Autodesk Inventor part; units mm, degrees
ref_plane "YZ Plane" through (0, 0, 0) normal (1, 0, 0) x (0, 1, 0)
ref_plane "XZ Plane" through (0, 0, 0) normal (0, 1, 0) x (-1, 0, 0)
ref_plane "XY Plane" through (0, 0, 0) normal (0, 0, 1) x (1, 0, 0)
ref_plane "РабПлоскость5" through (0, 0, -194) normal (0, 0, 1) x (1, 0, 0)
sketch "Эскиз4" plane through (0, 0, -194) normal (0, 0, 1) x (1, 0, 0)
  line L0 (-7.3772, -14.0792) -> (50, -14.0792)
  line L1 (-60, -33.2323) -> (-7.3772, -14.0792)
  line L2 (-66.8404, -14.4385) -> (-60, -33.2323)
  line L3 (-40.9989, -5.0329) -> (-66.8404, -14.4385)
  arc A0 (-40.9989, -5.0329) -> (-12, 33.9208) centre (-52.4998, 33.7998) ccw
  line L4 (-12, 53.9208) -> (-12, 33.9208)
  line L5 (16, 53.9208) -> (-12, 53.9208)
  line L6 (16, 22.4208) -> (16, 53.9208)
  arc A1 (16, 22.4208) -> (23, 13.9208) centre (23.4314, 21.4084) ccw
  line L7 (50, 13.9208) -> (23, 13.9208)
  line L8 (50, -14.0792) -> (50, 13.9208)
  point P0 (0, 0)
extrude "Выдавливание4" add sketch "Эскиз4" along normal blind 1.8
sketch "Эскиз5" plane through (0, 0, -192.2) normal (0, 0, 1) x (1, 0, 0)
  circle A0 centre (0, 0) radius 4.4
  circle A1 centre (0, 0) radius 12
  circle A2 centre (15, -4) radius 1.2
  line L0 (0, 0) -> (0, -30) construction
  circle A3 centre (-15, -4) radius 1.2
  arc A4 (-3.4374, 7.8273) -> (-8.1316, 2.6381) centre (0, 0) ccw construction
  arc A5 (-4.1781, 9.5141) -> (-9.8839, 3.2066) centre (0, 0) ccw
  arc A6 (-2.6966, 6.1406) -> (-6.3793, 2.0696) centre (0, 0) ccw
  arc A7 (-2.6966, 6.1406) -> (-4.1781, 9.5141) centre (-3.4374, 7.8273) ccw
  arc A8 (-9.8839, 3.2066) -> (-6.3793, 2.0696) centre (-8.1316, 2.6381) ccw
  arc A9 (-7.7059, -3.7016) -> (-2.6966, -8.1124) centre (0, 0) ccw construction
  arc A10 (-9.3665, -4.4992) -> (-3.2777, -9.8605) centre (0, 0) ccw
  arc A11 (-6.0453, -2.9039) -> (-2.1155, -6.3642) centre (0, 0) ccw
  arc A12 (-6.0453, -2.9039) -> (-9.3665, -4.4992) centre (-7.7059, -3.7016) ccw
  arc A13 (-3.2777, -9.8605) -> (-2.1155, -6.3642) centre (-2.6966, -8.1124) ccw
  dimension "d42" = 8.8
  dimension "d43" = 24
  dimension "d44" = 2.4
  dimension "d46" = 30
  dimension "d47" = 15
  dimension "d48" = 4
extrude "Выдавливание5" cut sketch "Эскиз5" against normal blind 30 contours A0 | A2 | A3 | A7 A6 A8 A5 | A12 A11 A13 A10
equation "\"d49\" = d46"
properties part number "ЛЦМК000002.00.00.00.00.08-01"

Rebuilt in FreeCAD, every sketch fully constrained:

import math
import FreeCAD as App
import Part
import Sketcher
Q = App.Units.Quantity

doc = App.newDocument("Part")
body = doc.addObject("PartDesign::Body", "Body")

sketch1 = body.newObject("Sketcher::SketchObject", "Sketch")
sketch1.AttachmentSupport = (doc.getObject("XY_Plane"), [""])
sketch1.MapMode = "FlatFace"
sketch1.AttachmentOffset = App.Placement(App.Vector(0, 0, -194), App.Rotation())
sketch1.addGeometry(Part.LineSegment(App.Vector(-60, -33, 0), App.Vector(-7, -14, 0)), False)
sketch1.addGeometry(Part.LineSegment(App.Vector(-7, -14, 0), App.Vector(50, -14, 0)), False)
sketch1.addGeometry(Part.LineSegment(App.Vector(50, -14, 0), App.Vector(50, 14, 0)), False)
sketch1.addGeometry(Part.LineSegment(App.Vector(50, 14, 0), App.Vector(23, 14, 0)), False)
sketch1.addGeometry(Part.ArcOfCircle(Part.Circle(App.Vector(23, 21, 0), App.Vector(0, 0, 1), 8), math.radians(172), math.radians(267)), False)
sketch1.addGeometry(Part.LineSegment(App.Vector(16, 22, 0), App.Vector(16, 54, 0)), False)
sketch1.addGeometry(Part.LineSegment(App.Vector(16, 54, 0), App.Vector(-12, 54, 0)), False)
sketch1.addGeometry(Part.LineSegment(App.Vector(-12, 54, 0), App.Vector(-12, 34, 0)), False)
sketch1.addGeometry(Part.ArcOfCircle(Part.Circle(App.Vector(-52, 34, 0), App.Vector(0, 0, 1), 40), math.radians(-74), math.radians(0)), False)
sketch1.addGeometry(Part.LineSegment(App.Vector(-41, -5, 0), App.Vector(-67, -14, 0)), False)
sketch1.addGeometry(Part.LineSegment(App.Vector(-67, -14, 0), App.Vector(-60, -33, 0)), False)
sketch1.addConstraint(Sketcher.Constraint("Coincident", 0, 2, 1, 1))
sketch1.addConstraint(Sketcher.Constraint("Coincident", 1, 2, 2, 1))
sketch1.addConstraint(Sketcher.Constraint("Coincident", 2, 2, 3, 1))
sketch1.addConstraint(Sketcher.Constraint("Coincident", 3, 2, 4, 2))
sketch1.addConstraint(Sketcher.Constraint("Coincident", 4, 1, 5, 1))
sketch1.addConstraint(Sketcher.Constraint("Coincident", 5, 2, 6, 1))
sketch1.addConstraint(Sketcher.Constraint("Coincident", 6, 2, 7, 1))
sketch1.addConstraint(Sketcher.Constraint("Coincident", 7, 2, 8, 2))
sketch1.addConstraint(Sketcher.Constraint("Coincident", 8, 1, 9, 1))
sketch1.addConstraint(Sketcher.Constraint("Coincident", 9, 2, 10, 1))
sketch1.addConstraint(Sketcher.Constraint("Coincident", 10, 2, 0, 1))
sketch1.addConstraint(Sketcher.Constraint("Horizontal", 1))
sketch1.addConstraint(Sketcher.Constraint("Vertical", 2))
sketch1.addConstraint(Sketcher.Constraint("Horizontal", 3))
sketch1.addConstraint(Sketcher.Constraint("Vertical", 5))
sketch1.addConstraint(Sketcher.Constraint("Horizontal", 6))
sketch1.addConstraint(Sketcher.Constraint("Vertical", 7))
sketch1.addConstraint(Sketcher.Constraint("Parallel", 0, 9))
sketch1.addConstraint(Sketcher.Constraint("Perpendicular", 9, 10))
sketch1.addConstraint(Sketcher.Constraint("Equal", 6, 2))
sketch1.addConstraint(Sketcher.Constraint("Radius", 4, Q("7.5 mm")))
sketch1.addConstraint(Sketcher.Constraint("Radius", 8, Q("40.5 mm")))
sketch1.addConstraint(Sketcher.Constraint("DistanceX", 3, 2, 3, 1, Q("27 mm")))
sketch1.addConstraint(Sketcher.Constraint("DistanceX", 6, 2, 6, 1, Q("28 mm")))
sketch1.addConstraint(Sketcher.Constraint("DistanceY", 7, 2, 7, 1, Q("20 mm")))
sketch1.addConstraint(Sketcher.Constraint("Angle", 0, Q("20 deg")))
sketch1.addConstraint(Sketcher.Constraint("Distance", 0, Q("56 mm")))
sketch1.addConstraint(Sketcher.Constraint("Distance", 10, Q("20 mm")))
sketch1.addConstraint(Sketcher.Constraint("DistanceY", 5, 1, 5, 2, Q("31.5 mm")))
sketch1.addConstraint(Sketcher.Constraint("DistanceX", -1, 1, 1, 2, Q("50 mm")))
sketch1.addConstraint(Sketcher.Constraint("DistanceX", -1, 1, 4, 1, Q("16 mm")))
sketch1.addConstraint(Sketcher.Constraint("DistanceX", 10, 2, -1, 1, Q("60 mm")))
sketch1.addConstraint(Sketcher.Constraint("DistanceY", 3, 2, 5, 2, Q("40 mm")))
sketch1.addConstraint(Sketcher.Constraint("Distance", 9, Q("27.5 mm")))
sketch1.addConstraint(Sketcher.Constraint("DistanceY", 8, 1, -1, 1, Q("5.033 mm")))
pad1 = body.newObject("PartDesign::Pad", "Pad")
pad1.Profile = sketch1
pad1.Length = 1.8

sketch2 = body.newObject("Sketcher::SketchObject", "Sketch001")
sketch2.AttachmentSupport = (doc.getObject("XY_Plane"), [""])
sketch2.MapMode = "FlatFace"
sketch2.AttachmentOffset = App.Placement(App.Vector(0, 0, -192.2), App.Rotation())
sketch2.addGeometry(Part.Circle(App.Vector(0, 0, 0), App.Vector(0, 0, 1), 4.4), False)
sketch2.addGeometry(Part.Circle(App.Vector(15, -4, 0), App.Vector(0, 0, 1), 1.2), False)
sketch2.addGeometry(Part.Circle(App.Vector(-15, -4, 0), App.Vector(0, 0, 1), 1.2), False)
sketch2.addGeometry(Part.ArcOfCircle(Part.Circle(App.Vector(-3.4, 7.8, 0), App.Vector(0, 0, 1), 1.8), math.radians(-66), math.radians(114)), False)
sketch2.addGeometry(Part.ArcOfCircle(Part.Circle(App.Vector(0, 0, 0), App.Vector(0, 0, 1), 10.4), math.radians(114), math.radians(162)), False)
sketch2.addGeometry(Part.ArcOfCircle(Part.Circle(App.Vector(-8.1, 2.6, 0), App.Vector(0, 0, 1), 1.8), math.radians(162), math.radians(342)), False)
sketch2.addGeometry(Part.ArcOfCircle(Part.Circle(App.Vector(0, 0, 0), App.Vector(0, 0, 1), 6.7), math.radians(114), math.radians(162)), False)
sketch2.addGeometry(Part.ArcOfCircle(Part.Circle(App.Vector(-7.7, -3.7, 0), App.Vector(0, 0, 1), 1.8), math.radians(26), math.radians(206)), False)
sketch2.addGeometry(Part.ArcOfCircle(Part.Circle(App.Vector(0, 0, 0), App.Vector(0, 0, 1), 10.4), math.radians(-154), math.radians(-108)), False)
sketch2.addGeometry(Part.ArcOfCircle(Part.Circle(App.Vector(-2.7, -8.1, 0), App.Vector(0, 0, 1), 1.8), math.radians(-108), math.radians(72)), False)
sketch2.addGeometry(Part.ArcOfCircle(Part.Circle(App.Vector(0, 0, 0), App.Vector(0, 0, 1), 6.7), math.radians(-154), math.radians(-108)), False)
sketch2.addConstraint(Sketcher.Constraint("Tangent", 3, 2, 4, 1))
sketch2.addConstraint(Sketcher.Constraint("Tangent", 4, 2, 5, 1))
sketch2.addConstraint(Sketcher.Constraint("Tangent", 5, 2, 6, 2))
sketch2.addConstraint(Sketcher.Constraint("Tangent", 6, 1, 3, 1))
sketch2.addConstraint(Sketcher.Constraint("Tangent", 7, 2, 8, 1))
sketch2.addConstraint(Sketcher.Constraint("Tangent", 8, 2, 9, 1))
sketch2.addConstraint(Sketcher.Constraint("Tangent", 9, 2, 10, 2))
sketch2.addConstraint(Sketcher.Constraint("Tangent", 10, 1, 7, 1))
sketch2.addConstraint(Sketcher.Constraint("Coincident", 0, 3, -1, 1))
sketch2.addConstraint(Sketcher.Constraint("Coincident", 4, 3, -1, 1))
sketch2.addConstraint(Sketcher.Constraint("Coincident", 6, 3, -1, 1))
sketch2.addConstraint(Sketcher.Constraint("Coincident", 8, 3, -1, 1))
sketch2.addConstraint(Sketcher.Constraint("Coincident", 10, 3, -1, 1))
sketch2.addConstraint(Sketcher.Constraint("Equal", 1, 2))
sketch2.addConstraint(Sketcher.Constraint("Equal", 5, 7))
sketch2.addConstraint(Sketcher.Constraint("Equal", 4, 8))
sketch2.addConstraint(Sketcher.Constraint("Symmetric", 1, 3, 2, 3, -2))
sketch2.addConstraint(Sketcher.Constraint("Vertical", 9, 3, 6, 1))
sketch2.addConstraint(Sketcher.Constraint("Diameter", 0, Q("8.8 mm")))
sketch2.addConstraint(Sketcher.Constraint("Diameter", 1, Q("2.4 mm")))
sketch2.addConstraint(Sketcher.Constraint("DistanceX", -1, 1, 1, 3, Q("15 mm")))
sketch2.addConstraint(Sketcher.Constraint("DistanceY", 1, 3, -1, 1, Q("4 mm")))
sketch2.addConstraint(Sketcher.Constraint("Radius", 4, Q("10.391 mm")))
sketch2.addConstraint(Sketcher.Constraint("Radius", 3, Q("1.8422 mm")))
sketch2.addConstraint(Sketcher.Constraint("DistanceX", 7, 2, 9, 3, Q("6.67 mm")))
sketch2.addConstraint(Sketcher.Constraint("DistanceY", -1, 1, 5, 3, Q("2.638 mm")))
sketch2.addConstraint(Sketcher.Constraint("DistanceX", 7, 3, -1, 1, Q("7.706 mm")))
pocket1 = body.newObject("PartDesign::Pocket", "Pocket")
pocket1.Profile = sketch2
pocket1.Length = 30

doc.recompute()
